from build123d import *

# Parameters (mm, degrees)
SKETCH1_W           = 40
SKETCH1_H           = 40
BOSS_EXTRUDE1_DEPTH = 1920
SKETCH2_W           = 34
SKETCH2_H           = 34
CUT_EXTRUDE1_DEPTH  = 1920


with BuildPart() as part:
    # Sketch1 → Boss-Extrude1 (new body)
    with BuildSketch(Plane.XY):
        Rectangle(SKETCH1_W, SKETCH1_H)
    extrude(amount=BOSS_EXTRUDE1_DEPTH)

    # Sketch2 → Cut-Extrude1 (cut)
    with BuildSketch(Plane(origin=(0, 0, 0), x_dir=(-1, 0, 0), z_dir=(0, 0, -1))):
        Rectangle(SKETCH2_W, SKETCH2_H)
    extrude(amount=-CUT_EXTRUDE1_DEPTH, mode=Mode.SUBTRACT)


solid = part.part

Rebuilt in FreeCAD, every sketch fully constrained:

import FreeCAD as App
import Part
import Sketcher

V = App.Vector
Q = App.Units.Quantity


def add_polygon(sketch, points):
    """Adds a closed chain of lines whose ends are joined by coincident constraints."""
    first, n = sketch.GeometryCount, len(points)
    for a, b in zip(points, points[1:] + points[:1]):
        sketch.addGeometry(Part.LineSegment(App.Vector(*a, 0), App.Vector(*b, 0)), False)
    for i in range(n):
        sketch.addConstraint(Sketcher.Constraint("Coincident", first + i, 2, first + (i + 1) % n, 1))

doc = App.newDocument("Part")
body = doc.addObject("PartDesign::Body", "Body")

# Sketch on XY plane
sketch1 = body.newObject("Sketcher::SketchObject", "Sketch")
sketch1.AttachmentSupport = (doc.getObject("XY_Plane"), [""])
sketch1.MapMode = "FlatFace"
add_polygon(sketch1, [(-20, 20), (-20, -20), (20, -20), (20, 20)])  # lines 0-3
sketch1.addConstraint(Sketcher.Constraint("Vertical", 0))
sketch1.addConstraint(Sketcher.Constraint("Horizontal", 1))
sketch1.addConstraint(Sketcher.Constraint("Vertical", 2))
sketch1.addConstraint(Sketcher.Constraint("Horizontal", 3))
sketch1.addConstraint(Sketcher.Constraint("Symmetric", 0, 2, 2, 2, -1, 1))
sketch1.addConstraint(Sketcher.Constraint("Equal", 3, 0))
sketch1.addConstraint(Sketcher.Constraint("DistanceX", 1, 1, 1, 2, Q("40 mm")))
pad1 = body.newObject("PartDesign::Pad", "Pad")
pad1.Profile = sketch1
pad1.Length = 1920

# Sketch on XY plane
sketch2 = body.newObject("Sketcher::SketchObject", "Sketch001")
sketch2.AttachmentSupport = (doc.getObject("XY_Plane"), [""])
sketch2.MapMode = "FlatFace"
add_polygon(sketch2, [(17, 17), (17, -17), (-17, -17), (-17, 17)])  # lines 0-3
sketch2.addConstraint(Sketcher.Constraint("Vertical", 0))
sketch2.addConstraint(Sketcher.Constraint("Horizontal", 1))
sketch2.addConstraint(Sketcher.Constraint("Vertical", 2))
sketch2.addConstraint(Sketcher.Constraint("Horizontal", 3))
sketch2.addConstraint(Sketcher.Constraint("Symmetric", 0, 2, 2, 2, -1, 1))
sketch2.addConstraint(Sketcher.Constraint("Equal", 3, 0))
sketch2.addConstraint(Sketcher.Constraint("DistanceX", 1, 2, 1, 1, Q("34 mm")))
pocket1 = body.newObject("PartDesign::Pocket", "Pocket")
pocket1.Profile = sketch2
pocket1.Length = 1920
pocket1.Reversed = True

doc.recompute()
